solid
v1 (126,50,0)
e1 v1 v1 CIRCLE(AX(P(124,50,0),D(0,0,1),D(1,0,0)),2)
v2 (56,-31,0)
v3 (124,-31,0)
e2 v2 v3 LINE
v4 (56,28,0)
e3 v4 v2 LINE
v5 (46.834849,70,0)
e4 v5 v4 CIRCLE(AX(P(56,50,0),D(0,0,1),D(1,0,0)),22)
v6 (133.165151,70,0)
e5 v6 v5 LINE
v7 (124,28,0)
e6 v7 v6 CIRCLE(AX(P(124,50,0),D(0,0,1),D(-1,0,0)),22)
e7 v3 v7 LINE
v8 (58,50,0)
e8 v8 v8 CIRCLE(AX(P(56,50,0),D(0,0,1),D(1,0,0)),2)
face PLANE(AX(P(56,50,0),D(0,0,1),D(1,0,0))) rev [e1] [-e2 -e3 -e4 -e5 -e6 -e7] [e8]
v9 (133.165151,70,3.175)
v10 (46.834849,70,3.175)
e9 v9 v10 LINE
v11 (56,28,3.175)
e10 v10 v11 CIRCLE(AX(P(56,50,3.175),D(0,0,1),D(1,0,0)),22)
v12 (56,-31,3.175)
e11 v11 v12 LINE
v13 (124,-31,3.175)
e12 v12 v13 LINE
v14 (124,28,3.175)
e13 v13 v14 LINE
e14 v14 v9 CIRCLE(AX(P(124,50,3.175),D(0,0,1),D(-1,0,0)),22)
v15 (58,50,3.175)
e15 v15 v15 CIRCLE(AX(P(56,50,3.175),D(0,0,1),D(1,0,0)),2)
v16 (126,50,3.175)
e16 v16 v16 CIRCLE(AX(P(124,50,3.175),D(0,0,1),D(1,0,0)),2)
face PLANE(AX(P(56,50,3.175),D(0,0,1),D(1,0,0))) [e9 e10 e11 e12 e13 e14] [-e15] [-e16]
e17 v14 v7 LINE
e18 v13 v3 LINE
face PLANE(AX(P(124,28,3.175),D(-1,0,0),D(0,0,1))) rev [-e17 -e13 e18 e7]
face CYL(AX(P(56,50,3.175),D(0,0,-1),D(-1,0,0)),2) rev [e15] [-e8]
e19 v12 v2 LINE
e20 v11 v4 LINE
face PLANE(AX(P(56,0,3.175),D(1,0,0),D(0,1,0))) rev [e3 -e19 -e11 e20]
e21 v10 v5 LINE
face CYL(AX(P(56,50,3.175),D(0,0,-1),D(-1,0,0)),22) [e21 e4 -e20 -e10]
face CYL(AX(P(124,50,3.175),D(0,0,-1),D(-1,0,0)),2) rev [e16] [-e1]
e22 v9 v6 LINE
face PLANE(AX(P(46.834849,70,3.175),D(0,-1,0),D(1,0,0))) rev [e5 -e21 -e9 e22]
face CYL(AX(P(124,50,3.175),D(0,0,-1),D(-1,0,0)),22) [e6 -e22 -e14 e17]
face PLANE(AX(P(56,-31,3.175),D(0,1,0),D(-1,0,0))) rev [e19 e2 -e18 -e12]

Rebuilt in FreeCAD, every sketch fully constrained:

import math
import FreeCAD as App
import Part
import Sketcher
from FreeCAD import Vector
Q = App.Units.Quantity

doc = App.newDocument("Part")
body = doc.addObject("PartDesign::Body", "Body")

# Sketch on XY plane
sketch1 = body.newObject("Sketcher::SketchObject", "Sketch")
sketch1.AttachmentSupport = (doc.getObject("XY_Plane"), [""])
sketch1.MapMode = "FlatFace"
sketch1.addGeometry([
    Part.LineSegment(Vector(133.2, 70, 0), Vector(46.8, 70, 0)),  # 0
    Part.ArcOfCircle(Part.Circle(Vector(56, 50, 0), Vector(0, 0, 1), 22), math.radians(115), math.radians(270)),  # 1
    Part.LineSegment(Vector(56, 28, 0), Vector(56, -31, 0)),  # 2
    Part.LineSegment(Vector(56, -31, 0), Vector(124, -31, 0)),  # 3
    Part.LineSegment(Vector(124, -31, 0), Vector(124, 28, 0)),  # 4
    Part.ArcOfCircle(Part.Circle(Vector(124, 50, 0), Vector(0, 0, 1), 22), math.radians(-90), math.radians(65)),  # 5
    Part.Circle(Vector(124, 50, 0), Vector(0, 0, 1), 2),  # 6
    Part.Circle(Vector(56, 50, 0), Vector(0, 0, 1), 2),  # 7
], False)
sketch1.addConstraint([
    Sketcher.Constraint("Coincident", 0, 2, 1, 1),
    Sketcher.Constraint("Coincident", 1, 2, 2, 1),
    Sketcher.Constraint("Coincident", 2, 2, 3, 1),
    Sketcher.Constraint("Coincident", 3, 2, 4, 1),
    Sketcher.Constraint("Coincident", 4, 2, 5, 1),
    Sketcher.Constraint("Coincident", 5, 2, 0, 1),
    Sketcher.Constraint("Horizontal", 0),
    Sketcher.Constraint("Vertical", 2),
    Sketcher.Constraint("Horizontal", 3),
    Sketcher.Constraint("Vertical", 4),
    Sketcher.Constraint("Coincident", 6, 3, 5, 3),
    Sketcher.Constraint("Coincident", 7, 3, 1, 3),
    Sketcher.Constraint("Equal", 1, 5),
    Sketcher.Constraint("Equal", 6, 7),
    Sketcher.Constraint("Horizontal", 1, 3, 5, 3),
    Sketcher.Constraint("Vertical", 7, 3, 1, 2),
    Sketcher.Constraint("Vertical", 6, 3, 3, 2),
    Sketcher.Constraint("Diameter", 6, Q("4 mm")),
    Sketcher.Constraint("Radius", 1, Q("22 mm")),
    Sketcher.Constraint("DistanceX", 3, 1, 3, 2, Q("68 mm")),
    Sketcher.Constraint("DistanceY", 2, 2, 2, 1, Q("59 mm")),
    Sketcher.Constraint("DistanceX", -1, 1, 1, 3, Q("56 mm")),
    Sketcher.Constraint("DistanceY", -1, 1, 1, 3, Q("50 mm")),
    Sketcher.Constraint("DistanceY", -1, 1, 0, 2, Q("70 mm")),
])
pad1 = body.newObject("PartDesign::Pad", "Pad")
pad1.Profile = sketch1
pad1.Length = 3.175

doc.recompute()
